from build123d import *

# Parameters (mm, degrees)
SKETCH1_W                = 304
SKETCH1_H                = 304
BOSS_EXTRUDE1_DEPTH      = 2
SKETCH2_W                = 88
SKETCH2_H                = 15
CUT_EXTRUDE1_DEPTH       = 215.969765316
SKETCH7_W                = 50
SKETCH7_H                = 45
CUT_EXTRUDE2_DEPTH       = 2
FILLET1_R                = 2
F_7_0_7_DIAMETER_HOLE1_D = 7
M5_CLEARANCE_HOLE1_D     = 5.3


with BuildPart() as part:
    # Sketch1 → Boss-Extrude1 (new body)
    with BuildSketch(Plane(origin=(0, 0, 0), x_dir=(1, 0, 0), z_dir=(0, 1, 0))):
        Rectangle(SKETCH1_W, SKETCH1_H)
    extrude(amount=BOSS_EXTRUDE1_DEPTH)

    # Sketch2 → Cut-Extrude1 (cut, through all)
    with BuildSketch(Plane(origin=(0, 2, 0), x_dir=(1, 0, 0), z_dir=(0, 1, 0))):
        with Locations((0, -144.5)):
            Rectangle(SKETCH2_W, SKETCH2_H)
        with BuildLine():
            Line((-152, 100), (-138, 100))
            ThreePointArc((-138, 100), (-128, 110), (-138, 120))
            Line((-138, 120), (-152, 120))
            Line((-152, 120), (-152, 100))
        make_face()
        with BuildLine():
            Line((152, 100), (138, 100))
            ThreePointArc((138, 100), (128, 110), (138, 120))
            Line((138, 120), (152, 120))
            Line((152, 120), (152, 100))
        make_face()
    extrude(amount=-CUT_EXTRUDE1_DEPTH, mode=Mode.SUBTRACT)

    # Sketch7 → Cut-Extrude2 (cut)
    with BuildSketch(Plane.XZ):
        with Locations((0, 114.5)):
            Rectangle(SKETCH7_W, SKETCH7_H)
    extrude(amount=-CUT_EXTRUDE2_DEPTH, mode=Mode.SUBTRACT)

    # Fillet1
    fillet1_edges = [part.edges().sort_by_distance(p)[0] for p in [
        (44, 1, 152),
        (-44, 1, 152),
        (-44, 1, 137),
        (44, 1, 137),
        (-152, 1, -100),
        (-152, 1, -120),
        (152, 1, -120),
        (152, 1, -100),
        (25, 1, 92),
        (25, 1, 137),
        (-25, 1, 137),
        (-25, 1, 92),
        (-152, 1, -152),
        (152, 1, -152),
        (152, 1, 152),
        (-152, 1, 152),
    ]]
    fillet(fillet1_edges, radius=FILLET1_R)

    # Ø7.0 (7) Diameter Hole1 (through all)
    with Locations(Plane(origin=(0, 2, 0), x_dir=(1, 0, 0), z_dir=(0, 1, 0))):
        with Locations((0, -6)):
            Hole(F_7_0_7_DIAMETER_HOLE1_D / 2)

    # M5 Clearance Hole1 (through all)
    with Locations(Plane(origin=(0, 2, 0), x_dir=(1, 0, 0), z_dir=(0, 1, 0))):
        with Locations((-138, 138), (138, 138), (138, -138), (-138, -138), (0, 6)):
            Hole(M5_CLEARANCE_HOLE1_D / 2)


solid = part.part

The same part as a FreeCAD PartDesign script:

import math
import FreeCAD as App
import Part
import Sketcher
from FreeCAD import Vector


def edges_at(feature, points):
    """Names of the edges that pass closest to the given points."""
    edges = feature.Shape.Edges
    near = lambda p: min(range(len(edges)), key=lambda i: edges[i].distToShape(Part.Vertex(*p))[0])
    return sorted({f"Edge{near(p) + 1}" for p in points})


def add_polygon(sketch, points):
    """Adds a closed chain of lines whose ends are joined by coincident constraints."""
    first, n = sketch.GeometryCount, len(points)
    for a, b in zip(points, points[1:] + points[:1]):
        sketch.addGeometry(Part.LineSegment(App.Vector(*a, 0), App.Vector(*b, 0)), False)
    for i in range(n):
        sketch.addConstraint(Sketcher.Constraint("Coincident", first + i, 2, first + (i + 1) % n, 1))

doc = App.newDocument("Part")
body = doc.addObject("PartDesign::Body", "Body")

sketch1 = doc.addObject("Sketcher::SketchObject", "Sketch")
body.addObject(sketch1)
sketch1.AttachmentSupport = (doc.XZ_Plane, [""])
sketch1.MapMode = "FlatFace"
add_polygon(sketch1, [(-152, -152), (-152, 152), (152, 152), (152, -152)])
sketch1.addConstraint(Sketcher.Constraint("Vertical", 0))
sketch1.addConstraint(Sketcher.Constraint("Horizontal", 1))
sketch1.addConstraint(Sketcher.Constraint("Vertical", 2))
sketch1.addConstraint(Sketcher.Constraint("Horizontal", 3))
sketch1.addConstraint(Sketcher.Constraint("Symmetric", 0, 2, 2, 2, -1, 1))
sketch1.addConstraint(Sketcher.Constraint("Equal", 3, 0))
sketch1.addConstraint(Sketcher.Constraint("DistanceX", 1, 1, 1, 2, 304.0))
pad1 = doc.addObject("PartDesign::Pad", "Pad")
body.addObject(pad1)
pad1.Profile = sketch1
pad1.Length = 2
pad1.Reversed = True

sketch2 = doc.addObject("Sketcher::SketchObject", "Sketch001")
body.addObject(sketch2)
sketch2.AttachmentSupport = (doc.XZ_Plane, [""])
sketch2.MapMode = "FlatFace"
sketch2.AttachmentOffset = App.Placement(Vector(0, 0, -2), App.Rotation())
add_polygon(sketch2, [(-44, 137), (-44, 152), (44, 152), (44, 137)])
sketch2.addGeometry(Part.LineSegment(Vector(-152, -100, 0), Vector(-138, -100, 0)), False)
sketch2.addGeometry(Part.ArcOfCircle(Part.Circle(Vector(-138, -110, 0), Vector(0, 0, 1), 10), math.radians(-90), math.radians(90)), False)
sketch2.addGeometry(Part.LineSegment(Vector(-138, -120, 0), Vector(-152, -120, 0)), False)
sketch2.addGeometry(Part.LineSegment(Vector(-152, -120, 0), Vector(-152, -100, 0)), False)
sketch2.addGeometry(Part.LineSegment(Vector(138, -100, 0), Vector(152, -100, 0)), False)
sketch2.addGeometry(Part.LineSegment(Vector(152, -100, 0), Vector(152, -120, 0)), False)
sketch2.addGeometry(Part.LineSegment(Vector(152, -120, 0), Vector(138, -120, 0)), False)
sketch2.addGeometry(Part.ArcOfCircle(Part.Circle(Vector(138, -110, 0), Vector(0, 0, 1), 10), math.radians(90), math.radians(270)), False)
sketch2.addConstraint(Sketcher.Constraint("Tangent", 4, 2, 5, 2))
sketch2.addConstraint(Sketcher.Constraint("Tangent", 5, 1, 6, 1))
sketch2.addConstraint(Sketcher.Constraint("Coincident", 6, 2, 7, 1))
sketch2.addConstraint(Sketcher.Constraint("Coincident", 7, 2, 4, 1))
sketch2.addConstraint(Sketcher.Constraint("Coincident", 8, 2, 9, 1))
sketch2.addConstraint(Sketcher.Constraint("Coincident", 9, 2, 10, 1))
sketch2.addConstraint(Sketcher.Constraint("Tangent", 10, 2, 11, 2))
sketch2.addConstraint(Sketcher.Constraint("Tangent", 11, 1, 8, 1))
sketch2.addConstraint(Sketcher.Constraint("Vertical", 0))
sketch2.addConstraint(Sketcher.Constraint("Horizontal", 1))
sketch2.addConstraint(Sketcher.Constraint("Vertical", 2))
sketch2.addConstraint(Sketcher.Constraint("Horizontal", 3))
sketch2.addConstraint(Sketcher.Constraint("Horizontal", 4))
sketch2.addConstraint(Sketcher.Constraint("Horizontal", 6))
sketch2.addConstraint(Sketcher.Constraint("Vertical", 7))
sketch2.addConstraint(Sketcher.Constraint("Horizontal", 8))
sketch2.addConstraint(Sketcher.Constraint("Vertical", 9))
sketch2.addConstraint(Sketcher.Constraint("Horizontal", 10))
sketch2.addConstraint(Sketcher.Constraint("Equal", 5, 11))
sketch2.addConstraint(Sketcher.Constraint("Symmetric", 5, 3, 11, 3, -2))
sketch2.addConstraint(Sketcher.Constraint("Equal", 6, 8))
sketch2.addConstraint(Sketcher.Constraint("Radius", 5, 10.0))
sketch2.addConstraint(Sketcher.Constraint("DistanceX", 1, 1, 1, 2, 88.0))
sketch2.addConstraint(Sketcher.Constraint("DistanceX", 4, 1, 4, 2, 14.0))
sketch2.addConstraint(Sketcher.Constraint("DistanceY", 0, 1, 0, 2, 15.0))
sketch2.addConstraint(Sketcher.Constraint("DistanceX", 5, 3, -1, 1, 138.0))
sketch2.addConstraint(Sketcher.Constraint("DistanceY", 5, 3, -1, 1, 110.0))
sketch2.addConstraint(Sketcher.Constraint("DistanceX", 0, 2, -1, 1, 44.0))
sketch2.addConstraint(Sketcher.Constraint("DistanceY", -1, 1, 0, 2, 152.0))
pocket1 = doc.addObject("PartDesign::Pocket", "Pocket")
body.addObject(pocket1)
pocket1.Profile = sketch2
pocket1.Type = "ThroughAll"
pocket1.Reversed = True

sketch3 = doc.addObject("Sketcher::SketchObject", "Sketch002")
body.addObject(sketch3)
sketch3.AttachmentSupport = (doc.XZ_Plane, [""])
sketch3.MapMode = "FlatFace"
add_polygon(sketch3, [(-25, 137), (-25, 92), (25, 92), (25, 137)])
sketch3.addConstraint(Sketcher.Constraint("Vertical", 0))
sketch3.addConstraint(Sketcher.Constraint("Horizontal", 1))
sketch3.addConstraint(Sketcher.Constraint("Vertical", 2))
sketch3.addConstraint(Sketcher.Constraint("Horizontal", 3))
sketch3.addConstraint(Sketcher.Constraint("DistanceX", 1, 1, 1, 2, 50.0))
sketch3.addConstraint(Sketcher.Constraint("DistanceY", 0, 2, 0, 1, 45.0))
sketch3.addConstraint(Sketcher.Constraint("DistanceX", 0, 2, -1, 1, 25.0))
sketch3.addConstraint(Sketcher.Constraint("DistanceY", -1, 1, 0, 2, 92.0))
pocket2 = doc.addObject("PartDesign::Pocket", "Pocket001")
body.addObject(pocket2)
pocket2.Profile = sketch3
pocket2.Length = 2
doc.recompute()

fillet = doc.addObject("PartDesign::Fillet", "Fillet")
body.addObject(fillet)
fillet.Base = (pocket2, edges_at(pocket2, [
    (44, 1, 152),
    (-44, 1, 152),
    (-44, 1, 137),
    (44, 1, 137),
    (-152, 1, -100),
    (-152, 1, -120),
    (152, 1, -120),
    (152, 1, -100),
    (25, 1, 92),
    (25, 1, 137),
    (-25, 1, 137),
    (-25, 1, 92),
    (-152, 1, -152),
    (152, 1, -152),
    (152, 1, 152),
    (-152, 1, 152),
]))
fillet.Radius = 2

sketch4 = doc.addObject("Sketcher::SketchObject", "Sketch003")
body.addObject(sketch4)
sketch4.AttachmentSupport = (doc.XZ_Plane, [""])
sketch4.MapMode = "FlatFace"
sketch4.AttachmentOffset = App.Placement(Vector(0, 0, -2), App.Rotation())
sketch4.addGeometry(Part.Circle(Vector(0, 6, 0), Vector(0, 0, 1), 3.5), False)
sketch4.addConstraint(Sketcher.Constraint("PointOnObject", 0, 3, -2))
sketch4.addConstraint(Sketcher.Constraint("Diameter", 0, 7.0))
sketch4.addConstraint(Sketcher.Constraint("DistanceY", -1, 1, 0, 3, 6.0))
doc.recompute()
hole = doc.addObject("PartDesign::Hole", "Hole")
body.addObject(hole)
hole.Profile = sketch4
hole.ThreadType = "None"
hole.Diameter = 7
hole.DepthType = "ThroughAll"
hole.Reversed = True

sketch5 = doc.addObject("Sketcher::SketchObject", "Sketch004")
body.addObject(sketch5)
sketch5.AttachmentSupport = (doc.XZ_Plane, [""])
sketch5.MapMode = "FlatFace"
sketch5.AttachmentOffset = App.Placement(Vector(0, 0, -2), App.Rotation())
sketch5.addGeometry(Part.Circle(Vector(-138, -138, 0), Vector(0, 0, 1), 2.6), False)
sketch5.addGeometry(Part.Circle(Vector(138, -138, 0), Vector(0, 0, 1), 2.6), False)
sketch5.addGeometry(Part.Circle(Vector(138, 138, 0), Vector(0, 0, 1), 2.6), False)
sketch5.addGeometry(Part.Circle(Vector(-138, 138, 0), Vector(0, 0, 1), 2.6), False)
sketch5.addGeometry(Part.Circle(Vector(0, -6, 0), Vector(0, 0, 1), 2.6), False)
sketch5.addConstraint(Sketcher.Constraint("Equal", 0, 1))
sketch5.addConstraint(Sketcher.Constraint("Equal", 1, 2))
sketch5.addConstraint(Sketcher.Constraint("Equal", 2, 3))
sketch5.addConstraint(Sketcher.Constraint("Equal", 3, 4))
sketch5.addConstraint(Sketcher.Constraint("Symmetric", 0, 3, 2, 3, -1, 1))
sketch5.addConstraint(Sketcher.Constraint("Symmetric", 1, 3, 3, 3, -1, 1))
sketch5.addConstraint(Sketcher.Constraint("Symmetric", 0, 3, 1, 3, -2))
sketch5.addConstraint(Sketcher.Constraint("PointOnObject", 4, 3, -2))
sketch5.addConstraint(Sketcher.Constraint("Diameter", 0, 5.3))
sketch5.addConstraint(Sketcher.Constraint("DistanceX", 0, 3, -1, 1, 138.0))
sketch5.addConstraint(Sketcher.Constraint("DistanceY", 0, 3, -1, 1, 138.0))
sketch5.addConstraint(Sketcher.Constraint("DistanceY", 4, 3, -1, 1, 6.0))
doc.recompute()
hole2 = doc.addObject("PartDesign::Hole", "Hole001")
body.addObject(hole2)
hole2.Profile = sketch5
hole2.ThreadType = "None"
hole2.Diameter = 5.3
hole2.DepthType = "ThroughAll"
hole2.Reversed = True

doc.recompute()
